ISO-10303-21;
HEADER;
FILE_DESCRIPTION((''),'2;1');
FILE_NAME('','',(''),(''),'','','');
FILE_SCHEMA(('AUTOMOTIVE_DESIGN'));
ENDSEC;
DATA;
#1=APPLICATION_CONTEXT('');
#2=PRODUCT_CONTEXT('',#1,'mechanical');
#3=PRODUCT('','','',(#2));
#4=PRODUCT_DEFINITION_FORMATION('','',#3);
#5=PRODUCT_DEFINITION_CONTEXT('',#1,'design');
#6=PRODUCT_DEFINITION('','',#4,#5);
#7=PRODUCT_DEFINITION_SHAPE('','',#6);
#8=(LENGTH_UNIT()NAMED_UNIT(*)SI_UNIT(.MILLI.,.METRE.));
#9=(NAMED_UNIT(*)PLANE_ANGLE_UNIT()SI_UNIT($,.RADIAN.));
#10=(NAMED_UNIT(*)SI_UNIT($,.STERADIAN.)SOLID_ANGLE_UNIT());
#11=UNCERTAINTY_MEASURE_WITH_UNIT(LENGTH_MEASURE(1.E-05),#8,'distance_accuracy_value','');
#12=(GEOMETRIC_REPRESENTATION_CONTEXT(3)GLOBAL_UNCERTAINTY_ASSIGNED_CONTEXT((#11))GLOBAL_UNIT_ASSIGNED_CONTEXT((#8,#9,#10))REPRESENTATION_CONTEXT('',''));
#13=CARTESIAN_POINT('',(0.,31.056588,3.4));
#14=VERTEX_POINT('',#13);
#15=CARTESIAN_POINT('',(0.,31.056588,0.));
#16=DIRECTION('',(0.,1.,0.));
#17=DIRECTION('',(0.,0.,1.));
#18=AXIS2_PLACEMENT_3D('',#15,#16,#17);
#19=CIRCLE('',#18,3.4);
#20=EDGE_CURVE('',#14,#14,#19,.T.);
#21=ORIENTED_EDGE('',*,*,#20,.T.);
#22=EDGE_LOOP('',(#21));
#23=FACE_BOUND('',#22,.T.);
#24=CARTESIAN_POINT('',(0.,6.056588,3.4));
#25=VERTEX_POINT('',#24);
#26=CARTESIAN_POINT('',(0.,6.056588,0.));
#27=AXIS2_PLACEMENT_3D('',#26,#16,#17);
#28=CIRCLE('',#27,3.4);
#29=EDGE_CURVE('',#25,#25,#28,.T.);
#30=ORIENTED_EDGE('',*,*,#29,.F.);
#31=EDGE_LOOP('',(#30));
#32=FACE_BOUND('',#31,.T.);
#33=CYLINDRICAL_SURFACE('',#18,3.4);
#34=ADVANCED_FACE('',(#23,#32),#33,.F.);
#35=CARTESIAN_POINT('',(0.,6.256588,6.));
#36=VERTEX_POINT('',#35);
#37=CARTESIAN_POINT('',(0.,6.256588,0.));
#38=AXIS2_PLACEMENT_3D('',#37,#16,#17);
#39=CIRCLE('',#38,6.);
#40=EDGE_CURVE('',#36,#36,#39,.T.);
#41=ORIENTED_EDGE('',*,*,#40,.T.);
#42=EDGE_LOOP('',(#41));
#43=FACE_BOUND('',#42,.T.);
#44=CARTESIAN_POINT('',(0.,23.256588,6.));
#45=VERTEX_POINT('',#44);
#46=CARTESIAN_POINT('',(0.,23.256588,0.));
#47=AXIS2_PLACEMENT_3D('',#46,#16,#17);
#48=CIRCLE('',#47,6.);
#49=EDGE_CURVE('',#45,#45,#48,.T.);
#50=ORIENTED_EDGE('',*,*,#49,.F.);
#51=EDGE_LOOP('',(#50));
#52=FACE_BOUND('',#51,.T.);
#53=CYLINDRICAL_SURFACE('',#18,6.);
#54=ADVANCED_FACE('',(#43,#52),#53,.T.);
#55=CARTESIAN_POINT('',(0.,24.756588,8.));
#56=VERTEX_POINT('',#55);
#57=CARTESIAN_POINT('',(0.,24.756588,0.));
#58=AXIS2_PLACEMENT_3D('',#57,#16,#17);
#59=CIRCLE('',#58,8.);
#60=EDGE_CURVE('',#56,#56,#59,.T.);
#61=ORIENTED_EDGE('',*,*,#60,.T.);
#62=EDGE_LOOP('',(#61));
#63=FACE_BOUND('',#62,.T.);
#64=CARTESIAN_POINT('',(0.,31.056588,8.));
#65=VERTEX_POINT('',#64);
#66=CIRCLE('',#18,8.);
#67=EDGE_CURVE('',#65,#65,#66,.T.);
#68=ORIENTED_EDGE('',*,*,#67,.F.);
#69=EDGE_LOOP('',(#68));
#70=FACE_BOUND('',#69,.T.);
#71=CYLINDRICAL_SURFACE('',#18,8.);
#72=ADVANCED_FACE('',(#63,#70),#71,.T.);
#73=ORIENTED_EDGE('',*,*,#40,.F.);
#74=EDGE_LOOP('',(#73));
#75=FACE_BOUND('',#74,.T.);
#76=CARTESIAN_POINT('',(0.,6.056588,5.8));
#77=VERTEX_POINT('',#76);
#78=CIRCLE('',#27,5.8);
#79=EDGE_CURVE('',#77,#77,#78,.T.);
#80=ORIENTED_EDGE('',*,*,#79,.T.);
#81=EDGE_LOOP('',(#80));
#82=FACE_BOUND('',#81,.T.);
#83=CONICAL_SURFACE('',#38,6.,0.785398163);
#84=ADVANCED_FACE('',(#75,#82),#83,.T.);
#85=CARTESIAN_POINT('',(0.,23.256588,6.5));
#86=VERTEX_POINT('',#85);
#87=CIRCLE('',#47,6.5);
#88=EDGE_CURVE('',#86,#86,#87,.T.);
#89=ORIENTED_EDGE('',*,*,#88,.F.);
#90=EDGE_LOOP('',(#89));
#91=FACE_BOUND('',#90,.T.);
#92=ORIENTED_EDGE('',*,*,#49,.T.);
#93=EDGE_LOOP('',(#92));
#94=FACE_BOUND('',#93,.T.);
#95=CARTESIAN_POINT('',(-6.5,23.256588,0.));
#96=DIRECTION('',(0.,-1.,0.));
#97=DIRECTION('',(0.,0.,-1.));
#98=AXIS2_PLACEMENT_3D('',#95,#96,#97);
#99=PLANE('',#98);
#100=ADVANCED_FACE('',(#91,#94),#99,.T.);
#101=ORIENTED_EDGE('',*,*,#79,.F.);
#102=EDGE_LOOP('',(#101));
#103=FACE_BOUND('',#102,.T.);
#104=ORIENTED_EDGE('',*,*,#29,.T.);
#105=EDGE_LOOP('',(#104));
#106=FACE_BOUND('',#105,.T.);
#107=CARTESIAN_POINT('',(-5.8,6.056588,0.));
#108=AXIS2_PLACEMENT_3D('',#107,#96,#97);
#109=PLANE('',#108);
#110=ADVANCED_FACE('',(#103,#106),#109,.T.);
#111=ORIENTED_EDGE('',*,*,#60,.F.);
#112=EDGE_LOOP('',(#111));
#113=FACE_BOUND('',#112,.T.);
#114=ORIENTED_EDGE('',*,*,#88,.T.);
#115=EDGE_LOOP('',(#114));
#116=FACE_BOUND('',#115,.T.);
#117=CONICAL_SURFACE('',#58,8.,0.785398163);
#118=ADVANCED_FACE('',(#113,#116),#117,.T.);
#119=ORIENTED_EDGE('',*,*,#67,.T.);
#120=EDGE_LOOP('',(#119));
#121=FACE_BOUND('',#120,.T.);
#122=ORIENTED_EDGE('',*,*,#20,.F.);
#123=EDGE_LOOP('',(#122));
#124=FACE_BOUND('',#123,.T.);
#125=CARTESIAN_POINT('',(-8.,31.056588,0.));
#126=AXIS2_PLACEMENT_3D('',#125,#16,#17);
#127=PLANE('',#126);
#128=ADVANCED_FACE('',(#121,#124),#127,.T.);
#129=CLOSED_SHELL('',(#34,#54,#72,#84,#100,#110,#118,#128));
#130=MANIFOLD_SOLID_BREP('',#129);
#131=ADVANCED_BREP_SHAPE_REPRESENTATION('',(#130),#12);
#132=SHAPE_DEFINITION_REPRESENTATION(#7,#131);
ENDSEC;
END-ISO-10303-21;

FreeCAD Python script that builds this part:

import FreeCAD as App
import Part
import Sketcher

V = App.Vector
Q = App.Units.Quantity

doc = App.newDocument("Part")
params = doc.addObject("Spreadsheet::Sheet", "Params")
for row, (alias, value) in enumerate([
    ("sketch1_width", "8 mm"),
    ("sketch1_height", "17 mm"),
    ("sketch1_height2", "25 mm"),
    ("sketch1_width2", "5.8 mm"),
    ("sketch1_width3", "0.5 mm"),
    ("revolution_angle", "360 deg"),
    ("sketch2_width", "25 mm"),
    ("sketch2_height", "3.4 mm"),
    ("groove_angle", "360 deg"),
], start=1):
    params.set(f"A{row}", alias)
    params.set(f"B{row}", "=" + value)
    params.setAlias(f"B{row}", alias)

body = doc.addObject("PartDesign::Body", "Body")

sketch1 = body.newObject("Sketcher::SketchObject", "Sketch")
sketch1.AttachmentSupport = (doc.getObject("XY_Plane"), [""])
sketch1.MapMode = "FlatFace"
sketch1.addGeometry([
    Part.LineSegment(V(-6, 23.26, 0), V(-6, 6.26, 0)),
    Part.LineSegment(V(-6, 6.26, 0), V(-5.8, 6.06, 0)),
    Part.LineSegment(V(-5.8, 6.06, 0), V(0, 6.06, 0)),
    Part.LineSegment(V(0, 6.06, 0), V(0, 31.06, 0)),
    Part.LineSegment(V(0, 31.06, 0), V(-8, 31.06, 0)),
    Part.LineSegment(V(-8, 31.06, 0), V(-8, 24.76, 0)),
    Part.LineSegment(V(-8, 24.76, 0), V(-6.5, 23.26, 0)),
    Part.LineSegment(V(-6.5, 23.26, 0), V(-6, 23.26, 0)),
], False)
sketch1.addConstraint([
    Sketcher.Constraint("Coincident", 0, 2, 1, 1),
    Sketcher.Constraint("Coincident", 1, 2, 2, 1),
    Sketcher.Constraint("Coincident", 2, 2, 3, 1),
    Sketcher.Constraint("Coincident", 3, 2, 4, 1),
    Sketcher.Constraint("Coincident", 4, 2, 5, 1),
    Sketcher.Constraint("Coincident", 5, 2, 6, 1),
    Sketcher.Constraint("Coincident", 6, 2, 7, 1),
    Sketcher.Constraint("Coincident", 7, 2, 0, 1),
    Sketcher.Constraint("Vertical", 0),
    Sketcher.Constraint("Horizontal", 2),
    Sketcher.Constraint("Vertical", 3),
    Sketcher.Constraint("Horizontal", 4),
    Sketcher.Constraint("Vertical", 5),
    Sketcher.Constraint("Horizontal", 7),
    Sketcher.Constraint("PointOnObject", 2, 2, -2),
    Sketcher.Constraint("Parallel", 1, 6),
    Sketcher.Constraint("DistanceX", 4, 2, 4, 1, Q("8 mm")),
    Sketcher.Constraint("DistanceY", 0, 2, 0, 1, Q("17 mm")),
    Sketcher.Constraint("DistanceY", 3, 1, 3, 2, Q("25 mm")),
    Sketcher.Constraint("Angle", 1, Q("-45 deg")),
    Sketcher.Constraint("DistanceX", 2, 1, 2, 2, Q("5.8 mm")),
    Sketcher.Constraint("DistanceX", 7, 1, 7, 2, Q("0.5 mm")),
    Sketcher.Constraint("DistanceX", 0, 2, -1, 1, Q("6 mm")),
    Sketcher.Constraint("DistanceY", -1, 1, 0, 2, Q("6.256588 mm")),
])
sketch1.setExpression("Constraints[16]", "Params.sketch1_width")
sketch1.setExpression("Constraints[17]", "Params.sketch1_height")
sketch1.setExpression("Constraints[18]", "Params.sketch1_height2")
sketch1.setExpression("Constraints[20]", "Params.sketch1_width2")
sketch1.setExpression("Constraints[21]", "Params.sketch1_width3")
revolution = body.newObject("PartDesign::Revolution", "Revolution")
revolution.Profile = sketch1
revolution.ReferenceAxis = (sketch1, ["V_Axis"])
revolution.setExpression("Angle", "Params.revolution_angle")

sketch2 = body.newObject("Sketcher::SketchObject", "Sketch001")
sketch2.AttachmentSupport = (doc.getObject("YZ_Plane"), [""])
sketch2.MapMode = "FlatFace"
sketch2.addGeometry([
    Part.LineSegment(V(6.1, 0, 0), V(31.1, 0, 0)),
    Part.LineSegment(V(31.1, 0, 0), V(31.1, 3.4, 0)),
    Part.LineSegment(V(31.1, 3.4, 0), V(6.1, 3.4, 0)),
    Part.LineSegment(V(6.1, 3.4, 0), V(6.1, 0, 0)),
], False)
sketch2.addConstraint([
    Sketcher.Constraint("Coincident", 0, 2, 1, 1),
    Sketcher.Constraint("Coincident", 1, 2, 2, 1),
    Sketcher.Constraint("Coincident", 2, 2, 3, 1),
    Sketcher.Constraint("Coincident", 3, 2, 0, 1),
    Sketcher.Constraint("Horizontal", 0),
    Sketcher.Constraint("Vertical", 1),
    Sketcher.Constraint("Horizontal", 2),
    Sketcher.Constraint("Vertical", 3),
    Sketcher.Constraint("PointOnObject", 0, 2, -1),
    Sketcher.Constraint("DistanceX", 0, 1, 0, 2, Q("25 mm")),
    Sketcher.Constraint("DistanceY", 1, 1, 1, 2, Q("3.4 mm")),
    Sketcher.Constraint("DistanceX", -1, 1, 0, 2, Q("31.056588 mm")),
])
sketch2.setExpression("Constraints[9]", "Params.sketch2_width")
sketch2.setExpression("Constraints[10]", "Params.sketch2_height")
groove = body.newObject("PartDesign::Groove", "Groove")
groove.Profile = sketch2
groove.ReferenceAxis = (sketch2, ["H_Axis"])
groove.setExpression("Angle", "Params.groove_angle")

doc.recompute()
